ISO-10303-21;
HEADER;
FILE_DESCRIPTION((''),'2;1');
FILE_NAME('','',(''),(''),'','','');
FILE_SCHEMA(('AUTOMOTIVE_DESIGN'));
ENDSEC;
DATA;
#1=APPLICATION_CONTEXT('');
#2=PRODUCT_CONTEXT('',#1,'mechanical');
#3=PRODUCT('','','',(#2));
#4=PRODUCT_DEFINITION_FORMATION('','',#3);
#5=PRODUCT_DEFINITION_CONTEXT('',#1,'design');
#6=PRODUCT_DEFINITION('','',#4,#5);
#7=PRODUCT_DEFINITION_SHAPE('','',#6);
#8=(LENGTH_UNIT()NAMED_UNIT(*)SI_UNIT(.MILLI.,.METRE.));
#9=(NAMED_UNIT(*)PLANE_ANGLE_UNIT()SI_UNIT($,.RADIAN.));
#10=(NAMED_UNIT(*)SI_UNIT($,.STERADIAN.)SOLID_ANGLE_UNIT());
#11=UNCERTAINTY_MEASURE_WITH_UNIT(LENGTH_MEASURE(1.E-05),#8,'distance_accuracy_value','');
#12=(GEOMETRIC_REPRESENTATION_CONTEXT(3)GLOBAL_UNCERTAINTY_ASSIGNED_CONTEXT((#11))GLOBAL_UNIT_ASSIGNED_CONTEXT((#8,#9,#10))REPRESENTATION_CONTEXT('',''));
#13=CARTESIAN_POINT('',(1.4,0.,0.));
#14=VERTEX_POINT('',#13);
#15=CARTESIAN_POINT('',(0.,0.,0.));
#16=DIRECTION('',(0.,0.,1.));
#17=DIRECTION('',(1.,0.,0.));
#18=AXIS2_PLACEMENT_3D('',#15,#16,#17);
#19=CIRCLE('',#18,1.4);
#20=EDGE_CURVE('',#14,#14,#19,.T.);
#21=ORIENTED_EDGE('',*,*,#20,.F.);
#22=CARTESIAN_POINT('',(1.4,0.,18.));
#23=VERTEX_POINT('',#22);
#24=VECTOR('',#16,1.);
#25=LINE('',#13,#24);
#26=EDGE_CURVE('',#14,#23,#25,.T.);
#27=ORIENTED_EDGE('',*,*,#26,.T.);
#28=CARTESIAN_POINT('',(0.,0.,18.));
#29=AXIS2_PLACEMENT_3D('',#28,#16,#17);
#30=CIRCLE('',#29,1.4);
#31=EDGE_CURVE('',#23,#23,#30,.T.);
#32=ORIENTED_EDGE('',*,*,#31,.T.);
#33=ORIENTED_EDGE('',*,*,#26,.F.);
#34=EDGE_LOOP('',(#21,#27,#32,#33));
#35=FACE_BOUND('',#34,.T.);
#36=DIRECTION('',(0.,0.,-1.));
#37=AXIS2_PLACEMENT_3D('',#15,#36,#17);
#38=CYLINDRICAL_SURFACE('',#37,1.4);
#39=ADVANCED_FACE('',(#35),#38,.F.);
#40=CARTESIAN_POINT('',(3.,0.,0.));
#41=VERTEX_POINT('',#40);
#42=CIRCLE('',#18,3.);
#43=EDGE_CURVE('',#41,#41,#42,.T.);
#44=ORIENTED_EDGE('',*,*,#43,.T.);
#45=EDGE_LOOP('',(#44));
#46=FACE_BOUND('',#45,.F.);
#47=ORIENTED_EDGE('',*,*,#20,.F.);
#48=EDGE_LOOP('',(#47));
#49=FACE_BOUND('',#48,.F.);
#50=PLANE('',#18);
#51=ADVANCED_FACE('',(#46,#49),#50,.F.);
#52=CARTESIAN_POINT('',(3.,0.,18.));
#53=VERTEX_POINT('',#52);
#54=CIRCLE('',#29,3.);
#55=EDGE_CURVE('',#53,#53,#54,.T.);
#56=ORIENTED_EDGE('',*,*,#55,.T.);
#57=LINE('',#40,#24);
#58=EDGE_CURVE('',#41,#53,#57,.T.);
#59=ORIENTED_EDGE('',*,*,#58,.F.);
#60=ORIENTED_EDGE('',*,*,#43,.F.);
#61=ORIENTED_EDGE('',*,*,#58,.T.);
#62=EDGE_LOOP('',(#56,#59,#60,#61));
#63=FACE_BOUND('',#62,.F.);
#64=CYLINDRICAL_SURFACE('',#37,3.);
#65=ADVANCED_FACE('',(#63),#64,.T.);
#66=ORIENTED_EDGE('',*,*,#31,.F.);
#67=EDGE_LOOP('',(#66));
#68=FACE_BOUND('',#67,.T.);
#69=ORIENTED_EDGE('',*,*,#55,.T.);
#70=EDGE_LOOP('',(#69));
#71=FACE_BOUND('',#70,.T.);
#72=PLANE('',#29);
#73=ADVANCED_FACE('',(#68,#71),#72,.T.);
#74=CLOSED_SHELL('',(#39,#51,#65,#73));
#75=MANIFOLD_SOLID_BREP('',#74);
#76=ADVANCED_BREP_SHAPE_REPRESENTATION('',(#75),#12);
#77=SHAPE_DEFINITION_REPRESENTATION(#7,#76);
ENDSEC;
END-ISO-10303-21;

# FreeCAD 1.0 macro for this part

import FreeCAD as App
import Part
import Sketcher

doc = App.newDocument("Part")
body = doc.addObject("PartDesign::Body", "Body")

# Sketch on XY plane
sketch1 = doc.addObject("Sketcher::SketchObject", "Sketch")
body.addObject(sketch1)
sketch1.AttachmentSupport = (doc.XY_Plane, [""])
sketch1.MapMode = "FlatFace"
sketch1.addGeometry([
    Part.Circle(App.Vector(0, 0, 0), App.Vector(0, 0, 1), 3),
    Part.Circle(App.Vector(0, 0, 0), App.Vector(0, 0, 1), 1.4),
], False)
sketch1.addConstraint([
    Sketcher.Constraint("Coincident", 0, 3, -1, 1),
    Sketcher.Constraint("Coincident", 1, 3, -1, 1),
    Sketcher.Constraint("Diameter", 0, 6.0),
    Sketcher.Constraint("Diameter", 1, 2.8),
])
pad1 = doc.addObject("PartDesign::Pad", "Pad")
body.addObject(pad1)
pad1.Profile = sketch1
pad1.Length = 18

doc.recompute()
